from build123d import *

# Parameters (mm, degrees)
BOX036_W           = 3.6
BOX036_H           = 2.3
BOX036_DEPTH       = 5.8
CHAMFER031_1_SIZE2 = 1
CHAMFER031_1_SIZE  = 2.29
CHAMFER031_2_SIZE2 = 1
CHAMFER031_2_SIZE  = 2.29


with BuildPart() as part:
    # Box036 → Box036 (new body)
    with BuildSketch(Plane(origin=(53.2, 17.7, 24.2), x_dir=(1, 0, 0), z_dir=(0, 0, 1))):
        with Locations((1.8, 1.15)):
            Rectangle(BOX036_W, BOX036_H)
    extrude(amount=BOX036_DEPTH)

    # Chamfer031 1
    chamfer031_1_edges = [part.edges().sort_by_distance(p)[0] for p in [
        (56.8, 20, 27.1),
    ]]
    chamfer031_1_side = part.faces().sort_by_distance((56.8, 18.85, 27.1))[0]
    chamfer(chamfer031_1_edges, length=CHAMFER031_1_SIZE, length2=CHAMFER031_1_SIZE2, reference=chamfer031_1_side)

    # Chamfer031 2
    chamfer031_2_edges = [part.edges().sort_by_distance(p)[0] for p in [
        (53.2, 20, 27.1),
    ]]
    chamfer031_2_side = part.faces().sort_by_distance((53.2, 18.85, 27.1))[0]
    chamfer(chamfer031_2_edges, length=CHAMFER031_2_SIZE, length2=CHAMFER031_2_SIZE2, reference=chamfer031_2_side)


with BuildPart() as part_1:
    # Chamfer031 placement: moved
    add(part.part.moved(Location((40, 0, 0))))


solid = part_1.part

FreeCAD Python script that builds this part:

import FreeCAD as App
import Part
import Sketcher
Q = App.Units.Quantity


def edges_at(feature, points):
    """Names of the edges that pass closest to the given points."""
    edges = feature.Shape.Edges
    near = lambda p: min(range(len(edges)), key=lambda i: edges[i].distToShape(Part.Vertex(*p))[0])
    return sorted({f"Edge{near(p) + 1}" for p in points})

doc = App.newDocument("Part")
body = doc.addObject("PartDesign::Body", "Body")

# Sketch on XY plane
sketch1 = doc.addObject("Sketcher::SketchObject", "Sketch")
body.addObject(sketch1)
sketch1.AttachmentSupport = (doc.XY_Plane, [""])
sketch1.MapMode = "FlatFace"
sketch1.AttachmentOffset = App.Placement(App.Vector(0, 0, 24.2), App.Rotation())
sketch1.addGeometry([
    Part.LineSegment(App.Vector(53.2, 20, 0), App.Vector(53.2, 17.7, 0)),
    Part.LineSegment(App.Vector(53.2, 17.7, 0), App.Vector(56.8, 17.7, 0)),
    Part.LineSegment(App.Vector(56.8, 17.7, 0), App.Vector(56.8, 20, 0)),
    Part.LineSegment(App.Vector(56.8, 20, 0), App.Vector(53.2, 20, 0)),
], False)
sketch1.addConstraint([
    Sketcher.Constraint("Coincident", 0, 2, 1, 1),
    Sketcher.Constraint("Coincident", 1, 2, 2, 1),
    Sketcher.Constraint("Coincident", 2, 2, 3, 1),
    Sketcher.Constraint("Coincident", 3, 2, 0, 1),
    Sketcher.Constraint("Vertical", 0),
    Sketcher.Constraint("Horizontal", 1),
    Sketcher.Constraint("Vertical", 2),
    Sketcher.Constraint("Horizontal", 3),
    Sketcher.Constraint("DistanceX", 1, 1, 1, 2, Q("3.6 mm")),
    Sketcher.Constraint("DistanceY", 0, 2, 0, 1, Q("2.3 mm")),
    Sketcher.Constraint("DistanceY", -1, 1, 2, 2, Q("20 mm")),
    Sketcher.Constraint("DistanceX", -1, 1, 0, 2, Q("53.2 mm")),
])
pad1 = doc.addObject("PartDesign::Pad", "Pad")
body.addObject(pad1)
pad1.Profile = sketch1
pad1.Length = 5.8
doc.recompute()

chamfer = doc.addObject("PartDesign::Chamfer", "Chamfer")
body.addObject(chamfer)
chamfer.Base = (pad1, edges_at(pad1, [(56.8, 20, 27.1)]))
chamfer.ChamferType = "Two distances"
chamfer.Size = 2.29
chamfer.Size2 = 1
doc.recompute()

chamfer2 = doc.addObject("PartDesign::Chamfer", "Chamfer001")
body.addObject(chamfer2)
chamfer2.Base = (chamfer, edges_at(chamfer, [(53.2, 20, 27.1)]))
chamfer2.ChamferType = "Two distances"
chamfer2.Size = 2.29
chamfer2.Size2 = 1
chamfer2.FlipDirection = True
body2 = doc.addObject("PartDesign::Body", "Body001")
doc.recompute()

body.Placement = App.Placement(App.Vector(40, 0, 0), App.Rotation(App.Vector(0, 0, 1), 0))
boolean = doc.addObject("PartDesign::Boolean", "Boolean")
body2.addObject(boolean)
boolean.Type = "Fuse"
boolean.addObjects([body])

doc.recompute()
